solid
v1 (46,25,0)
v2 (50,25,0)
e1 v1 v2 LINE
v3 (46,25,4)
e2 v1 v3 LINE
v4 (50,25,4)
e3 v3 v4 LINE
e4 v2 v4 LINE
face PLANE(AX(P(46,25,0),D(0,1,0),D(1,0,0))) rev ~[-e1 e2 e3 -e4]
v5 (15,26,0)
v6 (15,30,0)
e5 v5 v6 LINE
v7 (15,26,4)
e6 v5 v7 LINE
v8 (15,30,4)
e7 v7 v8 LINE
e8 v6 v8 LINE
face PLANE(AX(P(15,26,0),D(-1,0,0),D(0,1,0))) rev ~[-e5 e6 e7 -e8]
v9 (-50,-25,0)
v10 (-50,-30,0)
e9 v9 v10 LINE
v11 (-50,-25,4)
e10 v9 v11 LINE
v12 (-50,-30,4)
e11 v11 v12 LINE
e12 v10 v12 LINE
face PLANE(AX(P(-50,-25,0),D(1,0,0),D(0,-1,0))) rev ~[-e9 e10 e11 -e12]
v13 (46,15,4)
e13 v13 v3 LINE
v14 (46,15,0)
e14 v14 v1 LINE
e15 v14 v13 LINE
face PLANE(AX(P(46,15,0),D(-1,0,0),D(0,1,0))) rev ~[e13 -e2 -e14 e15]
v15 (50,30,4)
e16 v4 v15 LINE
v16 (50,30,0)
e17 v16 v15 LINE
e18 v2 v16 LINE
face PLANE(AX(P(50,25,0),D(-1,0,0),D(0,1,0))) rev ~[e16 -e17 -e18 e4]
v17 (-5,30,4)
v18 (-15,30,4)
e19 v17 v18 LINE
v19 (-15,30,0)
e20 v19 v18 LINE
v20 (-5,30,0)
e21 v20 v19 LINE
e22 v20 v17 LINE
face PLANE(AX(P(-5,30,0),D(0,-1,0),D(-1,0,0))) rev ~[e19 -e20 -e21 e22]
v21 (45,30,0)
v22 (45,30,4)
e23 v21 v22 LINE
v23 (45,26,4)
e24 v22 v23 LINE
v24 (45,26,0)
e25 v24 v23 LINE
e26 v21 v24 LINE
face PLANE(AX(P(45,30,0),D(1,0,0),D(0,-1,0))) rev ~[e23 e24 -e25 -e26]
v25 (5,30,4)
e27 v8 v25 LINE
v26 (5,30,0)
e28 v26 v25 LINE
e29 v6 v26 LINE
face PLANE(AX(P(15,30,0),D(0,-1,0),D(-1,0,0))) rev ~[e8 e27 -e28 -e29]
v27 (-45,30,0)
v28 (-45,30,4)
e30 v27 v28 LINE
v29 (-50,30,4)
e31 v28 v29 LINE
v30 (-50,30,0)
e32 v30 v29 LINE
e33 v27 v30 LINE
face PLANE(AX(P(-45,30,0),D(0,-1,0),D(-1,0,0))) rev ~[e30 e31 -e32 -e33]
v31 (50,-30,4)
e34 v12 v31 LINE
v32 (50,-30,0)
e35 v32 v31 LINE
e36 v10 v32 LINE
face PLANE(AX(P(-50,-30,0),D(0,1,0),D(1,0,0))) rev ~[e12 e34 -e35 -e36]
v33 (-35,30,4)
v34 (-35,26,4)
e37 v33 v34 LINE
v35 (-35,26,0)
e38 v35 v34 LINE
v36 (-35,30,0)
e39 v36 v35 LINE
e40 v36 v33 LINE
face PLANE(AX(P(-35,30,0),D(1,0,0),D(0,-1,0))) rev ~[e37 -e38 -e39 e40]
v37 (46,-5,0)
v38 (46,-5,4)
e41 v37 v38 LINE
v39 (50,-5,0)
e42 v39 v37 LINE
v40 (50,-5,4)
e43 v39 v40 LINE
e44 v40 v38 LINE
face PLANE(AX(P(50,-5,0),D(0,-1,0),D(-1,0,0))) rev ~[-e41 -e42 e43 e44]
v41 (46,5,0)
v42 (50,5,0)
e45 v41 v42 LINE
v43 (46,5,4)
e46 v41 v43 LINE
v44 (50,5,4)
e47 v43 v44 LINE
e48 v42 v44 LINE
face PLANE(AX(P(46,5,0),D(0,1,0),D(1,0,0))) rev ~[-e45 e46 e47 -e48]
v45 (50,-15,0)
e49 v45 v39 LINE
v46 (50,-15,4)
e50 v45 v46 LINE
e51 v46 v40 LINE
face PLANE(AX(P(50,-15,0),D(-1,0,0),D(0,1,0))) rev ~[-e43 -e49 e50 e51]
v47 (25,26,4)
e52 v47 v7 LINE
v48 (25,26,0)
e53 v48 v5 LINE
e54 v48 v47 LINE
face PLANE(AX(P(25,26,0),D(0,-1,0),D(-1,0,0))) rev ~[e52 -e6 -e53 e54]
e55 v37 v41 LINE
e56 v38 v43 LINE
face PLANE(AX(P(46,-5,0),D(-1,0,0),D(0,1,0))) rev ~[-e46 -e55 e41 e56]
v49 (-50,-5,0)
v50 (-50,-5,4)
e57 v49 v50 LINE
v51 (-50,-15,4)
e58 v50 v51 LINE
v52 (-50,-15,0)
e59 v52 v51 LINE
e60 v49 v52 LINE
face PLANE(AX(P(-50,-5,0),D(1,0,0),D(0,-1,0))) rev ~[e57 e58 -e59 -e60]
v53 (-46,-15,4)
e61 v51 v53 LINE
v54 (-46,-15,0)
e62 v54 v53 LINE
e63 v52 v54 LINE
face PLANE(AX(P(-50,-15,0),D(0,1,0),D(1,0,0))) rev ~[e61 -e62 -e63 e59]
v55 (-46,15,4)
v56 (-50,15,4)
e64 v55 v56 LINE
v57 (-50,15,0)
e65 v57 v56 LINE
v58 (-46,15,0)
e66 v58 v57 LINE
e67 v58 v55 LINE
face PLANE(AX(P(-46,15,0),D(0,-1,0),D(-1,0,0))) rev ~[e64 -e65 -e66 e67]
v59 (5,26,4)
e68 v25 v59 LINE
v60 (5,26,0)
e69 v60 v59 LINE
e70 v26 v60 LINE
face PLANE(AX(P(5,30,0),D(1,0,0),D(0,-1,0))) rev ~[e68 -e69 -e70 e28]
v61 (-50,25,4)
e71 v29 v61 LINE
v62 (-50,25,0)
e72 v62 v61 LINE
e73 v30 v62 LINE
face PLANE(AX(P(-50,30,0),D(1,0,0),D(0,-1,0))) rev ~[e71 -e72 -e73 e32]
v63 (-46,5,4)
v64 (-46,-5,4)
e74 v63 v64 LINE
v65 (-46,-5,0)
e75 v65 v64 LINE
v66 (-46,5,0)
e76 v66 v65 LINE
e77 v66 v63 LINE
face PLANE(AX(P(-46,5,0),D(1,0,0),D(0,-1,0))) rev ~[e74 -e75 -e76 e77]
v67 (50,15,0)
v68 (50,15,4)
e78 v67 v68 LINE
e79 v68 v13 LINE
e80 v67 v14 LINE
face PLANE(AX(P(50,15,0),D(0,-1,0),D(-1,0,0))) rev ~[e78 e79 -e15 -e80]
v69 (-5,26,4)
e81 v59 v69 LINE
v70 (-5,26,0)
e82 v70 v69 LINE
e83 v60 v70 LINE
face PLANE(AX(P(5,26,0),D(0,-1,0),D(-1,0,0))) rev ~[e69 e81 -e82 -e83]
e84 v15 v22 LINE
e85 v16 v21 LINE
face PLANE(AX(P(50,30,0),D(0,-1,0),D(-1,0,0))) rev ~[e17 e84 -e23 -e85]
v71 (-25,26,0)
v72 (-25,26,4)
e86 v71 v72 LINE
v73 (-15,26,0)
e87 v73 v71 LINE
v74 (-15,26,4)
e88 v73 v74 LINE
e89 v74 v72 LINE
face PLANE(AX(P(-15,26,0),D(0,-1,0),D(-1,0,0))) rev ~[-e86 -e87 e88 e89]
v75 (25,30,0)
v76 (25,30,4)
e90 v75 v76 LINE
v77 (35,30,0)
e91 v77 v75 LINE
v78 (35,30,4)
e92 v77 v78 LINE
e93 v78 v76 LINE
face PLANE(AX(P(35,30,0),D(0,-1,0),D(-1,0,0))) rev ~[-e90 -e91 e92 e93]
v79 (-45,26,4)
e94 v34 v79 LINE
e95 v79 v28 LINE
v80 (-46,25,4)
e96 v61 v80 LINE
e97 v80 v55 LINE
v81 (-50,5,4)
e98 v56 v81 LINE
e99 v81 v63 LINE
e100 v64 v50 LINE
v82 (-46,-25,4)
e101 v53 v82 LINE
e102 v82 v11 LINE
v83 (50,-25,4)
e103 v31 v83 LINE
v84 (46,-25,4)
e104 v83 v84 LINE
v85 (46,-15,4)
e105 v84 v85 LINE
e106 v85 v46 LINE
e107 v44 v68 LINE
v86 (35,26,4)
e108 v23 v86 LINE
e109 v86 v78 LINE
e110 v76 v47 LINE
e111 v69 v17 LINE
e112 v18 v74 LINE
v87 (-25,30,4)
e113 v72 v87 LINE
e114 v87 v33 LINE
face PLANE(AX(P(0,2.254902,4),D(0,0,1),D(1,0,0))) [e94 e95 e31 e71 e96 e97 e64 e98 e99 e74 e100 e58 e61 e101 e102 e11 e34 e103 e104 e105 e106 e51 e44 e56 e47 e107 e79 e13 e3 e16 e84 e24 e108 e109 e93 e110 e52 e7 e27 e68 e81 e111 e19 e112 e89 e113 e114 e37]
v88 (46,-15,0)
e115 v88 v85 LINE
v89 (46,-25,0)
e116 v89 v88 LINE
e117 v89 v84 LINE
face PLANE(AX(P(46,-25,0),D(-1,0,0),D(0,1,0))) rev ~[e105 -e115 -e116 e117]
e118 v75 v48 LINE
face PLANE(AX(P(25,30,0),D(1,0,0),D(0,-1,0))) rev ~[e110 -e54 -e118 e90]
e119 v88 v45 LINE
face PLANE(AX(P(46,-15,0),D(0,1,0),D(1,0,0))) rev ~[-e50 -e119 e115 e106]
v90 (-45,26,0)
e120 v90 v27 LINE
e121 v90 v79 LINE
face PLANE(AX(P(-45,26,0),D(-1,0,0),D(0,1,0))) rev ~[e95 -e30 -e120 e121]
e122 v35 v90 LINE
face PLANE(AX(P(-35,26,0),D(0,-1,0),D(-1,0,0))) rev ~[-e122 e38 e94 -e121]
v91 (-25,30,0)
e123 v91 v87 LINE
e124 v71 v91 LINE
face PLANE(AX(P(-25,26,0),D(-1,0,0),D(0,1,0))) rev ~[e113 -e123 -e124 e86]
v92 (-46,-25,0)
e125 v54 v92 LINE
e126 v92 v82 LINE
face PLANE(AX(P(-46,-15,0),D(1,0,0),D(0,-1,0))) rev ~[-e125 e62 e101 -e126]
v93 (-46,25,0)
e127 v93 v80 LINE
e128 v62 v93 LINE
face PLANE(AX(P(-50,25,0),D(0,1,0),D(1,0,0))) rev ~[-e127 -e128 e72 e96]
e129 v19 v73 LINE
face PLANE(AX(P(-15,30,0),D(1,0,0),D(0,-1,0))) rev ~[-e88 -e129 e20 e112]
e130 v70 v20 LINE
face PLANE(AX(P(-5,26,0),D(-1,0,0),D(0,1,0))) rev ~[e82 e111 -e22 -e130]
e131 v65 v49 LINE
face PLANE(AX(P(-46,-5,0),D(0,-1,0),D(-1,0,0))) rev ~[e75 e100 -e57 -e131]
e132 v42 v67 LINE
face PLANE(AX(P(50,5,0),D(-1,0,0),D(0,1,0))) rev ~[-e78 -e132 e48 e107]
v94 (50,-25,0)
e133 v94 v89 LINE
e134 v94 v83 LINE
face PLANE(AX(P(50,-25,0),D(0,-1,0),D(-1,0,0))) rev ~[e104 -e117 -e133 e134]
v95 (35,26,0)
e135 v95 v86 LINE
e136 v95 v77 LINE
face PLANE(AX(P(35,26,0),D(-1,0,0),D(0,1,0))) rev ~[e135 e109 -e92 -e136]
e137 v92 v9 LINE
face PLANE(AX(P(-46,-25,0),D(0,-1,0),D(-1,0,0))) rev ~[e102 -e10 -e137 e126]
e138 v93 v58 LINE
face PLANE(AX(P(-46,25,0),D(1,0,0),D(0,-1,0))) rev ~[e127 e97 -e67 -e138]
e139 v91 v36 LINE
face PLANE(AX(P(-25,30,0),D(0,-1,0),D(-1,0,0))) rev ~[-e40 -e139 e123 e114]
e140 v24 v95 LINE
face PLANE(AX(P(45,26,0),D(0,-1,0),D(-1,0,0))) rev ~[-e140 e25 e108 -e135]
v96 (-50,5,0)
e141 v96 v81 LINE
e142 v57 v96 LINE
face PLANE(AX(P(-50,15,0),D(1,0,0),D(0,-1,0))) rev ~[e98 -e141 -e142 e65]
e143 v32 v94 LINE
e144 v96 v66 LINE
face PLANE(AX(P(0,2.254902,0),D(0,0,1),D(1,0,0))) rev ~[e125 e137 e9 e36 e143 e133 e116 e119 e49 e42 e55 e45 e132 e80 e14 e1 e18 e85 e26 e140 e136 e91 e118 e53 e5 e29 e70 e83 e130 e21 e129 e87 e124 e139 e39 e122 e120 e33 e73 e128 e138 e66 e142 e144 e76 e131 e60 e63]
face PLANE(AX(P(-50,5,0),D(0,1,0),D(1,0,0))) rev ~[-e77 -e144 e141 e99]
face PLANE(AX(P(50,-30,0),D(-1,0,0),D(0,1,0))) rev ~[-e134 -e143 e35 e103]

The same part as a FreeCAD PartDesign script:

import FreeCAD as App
import Part
import Sketcher

doc = App.newDocument("Part")
body = doc.addObject("PartDesign::Body", "Body")

# Sketch on XY plane
sketch1 = body.newObject("Sketcher::SketchObject", "Sketch")
sketch1.AttachmentSupport = (doc.getObject("XY_Plane"), [""])
sketch1.MapMode = "FlatFace"
sketch1.addGeometry([
    Part.LineSegment(App.Vector(-45, 30, 0), App.Vector(-50, 30, 0)),  # 0
    Part.LineSegment(App.Vector(-50, 30, 0), App.Vector(-50, 25, 0)),  # 1
    Part.LineSegment(App.Vector(-50, 25, 0), App.Vector(-46, 25, 0)),  # 2
    Part.LineSegment(App.Vector(-46, 25, 0), App.Vector(-46, 15, 0)),  # 3
    Part.LineSegment(App.Vector(-46, 15, 0), App.Vector(-50, 15, 0)),  # 4
    Part.LineSegment(App.Vector(-50, 15, 0), App.Vector(-50, 5, 0)),  # 5
    Part.LineSegment(App.Vector(-50, 5, 0), App.Vector(-46, 5, 0)),  # 6
    Part.LineSegment(App.Vector(-46, 5, 0), App.Vector(-46, -5, 0)),  # 7
    Part.LineSegment(App.Vector(-46, -5, 0), App.Vector(-50, -5, 0)),  # 8
    Part.LineSegment(App.Vector(-50, -5, 0), App.Vector(-50, -15, 0)),  # 9
    Part.LineSegment(App.Vector(-50, -15, 0), App.Vector(-46, -15, 0)),  # 10
    Part.LineSegment(App.Vector(-46, -15, 0), App.Vector(-46, -25, 0)),  # 11
    Part.LineSegment(App.Vector(-46, -25, 0), App.Vector(-50, -25, 0)),  # 12
    Part.LineSegment(App.Vector(-50, -25, 0), App.Vector(-50, -30, 0)),  # 13
    Part.LineSegment(App.Vector(-50, -30, 0), App.Vector(50, -30, 0)),  # 14
    Part.LineSegment(App.Vector(50, -30, 0), App.Vector(50, -25, 0)),  # 15
    Part.LineSegment(App.Vector(50, -25, 0), App.Vector(46, -25, 0)),  # 16
    Part.LineSegment(App.Vector(46, -25, 0), App.Vector(46, -15, 0)),  # 17
    Part.LineSegment(App.Vector(46, -15, 0), App.Vector(50, -15, 0)),  # 18
    Part.LineSegment(App.Vector(50, -15, 0), App.Vector(50, -5, 0)),  # 19
    Part.LineSegment(App.Vector(50, -5, 0), App.Vector(46, -5, 0)),  # 20
    Part.LineSegment(App.Vector(46, -5, 0), App.Vector(46, 5, 0)),  # 21
    Part.LineSegment(App.Vector(46, 5, 0), App.Vector(50, 5, 0)),  # 22
    Part.LineSegment(App.Vector(50, 5, 0), App.Vector(50, 15, 0)),  # 23
    Part.LineSegment(App.Vector(50, 15, 0), App.Vector(46, 15, 0)),  # 24
    Part.LineSegment(App.Vector(46, 15, 0), App.Vector(46, 25, 0)),  # 25
    Part.LineSegment(App.Vector(46, 25, 0), App.Vector(50, 25, 0)),  # 26
    Part.LineSegment(App.Vector(50, 25, 0), App.Vector(50, 30, 0)),  # 27
    Part.LineSegment(App.Vector(50, 30, 0), App.Vector(45, 30, 0)),  # 28
    Part.LineSegment(App.Vector(45, 30, 0), App.Vector(45, 26, 0)),  # 29
    Part.LineSegment(App.Vector(45, 26, 0), App.Vector(35, 26, 0)),  # 30
    Part.LineSegment(App.Vector(35, 26, 0), App.Vector(35, 30, 0)),  # 31
    Part.LineSegment(App.Vector(35, 30, 0), App.Vector(25, 30, 0)),  # 32
    Part.LineSegment(App.Vector(25, 30, 0), App.Vector(25, 26, 0)),  # 33
    Part.LineSegment(App.Vector(25, 26, 0), App.Vector(15, 26, 0)),  # 34
    Part.LineSegment(App.Vector(15, 26, 0), App.Vector(15, 30, 0)),  # 35
    Part.LineSegment(App.Vector(15, 30, 0), App.Vector(5, 30, 0)),  # 36
    Part.LineSegment(App.Vector(5, 30, 0), App.Vector(5, 26, 0)),  # 37
    Part.LineSegment(App.Vector(5, 26, 0), App.Vector(-5, 26, 0)),  # 38
    Part.LineSegment(App.Vector(-5, 26, 0), App.Vector(-5, 30, 0)),  # 39
    Part.LineSegment(App.Vector(-5, 30, 0), App.Vector(-15, 30, 0)),  # 40
    Part.LineSegment(App.Vector(-15, 30, 0), App.Vector(-15, 26, 0)),  # 41
    Part.LineSegment(App.Vector(-15, 26, 0), App.Vector(-25, 26, 0)),  # 42
    Part.LineSegment(App.Vector(-25, 26, 0), App.Vector(-25, 30, 0)),  # 43
    Part.LineSegment(App.Vector(-25, 30, 0), App.Vector(-35, 30, 0)),  # 44
    Part.LineSegment(App.Vector(-35, 30, 0), App.Vector(-35, 26, 0)),  # 45
    Part.LineSegment(App.Vector(-35, 26, 0), App.Vector(-45, 26, 0)),  # 46
    Part.LineSegment(App.Vector(-45, 26, 0), App.Vector(-45, 30, 0)),  # 47
], False)
sketch1.addConstraint([
    Sketcher.Constraint("Coincident", 0, 2, 1, 1),
    Sketcher.Constraint("Coincident", 1, 2, 2, 1),
    Sketcher.Constraint("Coincident", 2, 2, 3, 1),
    Sketcher.Constraint("Coincident", 3, 2, 4, 1),
    Sketcher.Constraint("Coincident", 4, 2, 5, 1),
    Sketcher.Constraint("Coincident", 5, 2, 6, 1),
    Sketcher.Constraint("Coincident", 6, 2, 7, 1),
    Sketcher.Constraint("Coincident", 7, 2, 8, 1),
    Sketcher.Constraint("Coincident", 8, 2, 9, 1),
    Sketcher.Constraint("Coincident", 9, 2, 10, 1),
    Sketcher.Constraint("Coincident", 10, 2, 11, 1),
    Sketcher.Constraint("Coincident", 11, 2, 12, 1),
    Sketcher.Constraint("Coincident", 12, 2, 13, 1),
    Sketcher.Constraint("Coincident", 13, 2, 14, 1),
    Sketcher.Constraint("Coincident", 14, 2, 15, 1),
    Sketcher.Constraint("Coincident", 15, 2, 16, 1),
    Sketcher.Constraint("Coincident", 16, 2, 17, 1),
    Sketcher.Constraint("Coincident", 17, 2, 18, 1),
    Sketcher.Constraint("Coincident", 18, 2, 19, 1),
    Sketcher.Constraint("Coincident", 19, 2, 20, 1),
    Sketcher.Constraint("Coincident", 20, 2, 21, 1),
    Sketcher.Constraint("Coincident", 21, 2, 22, 1),
    Sketcher.Constraint("Coincident", 22, 2, 23, 1),
    Sketcher.Constraint("Coincident", 23, 2, 24, 1),
    Sketcher.Constraint("Coincident", 24, 2, 25, 1),
    Sketcher.Constraint("Coincident", 25, 2, 26, 1),
    Sketcher.Constraint("Coincident", 26, 2, 27, 1),
    Sketcher.Constraint("Coincident", 27, 2, 28, 1),
    Sketcher.Constraint("Coincident", 28, 2, 29, 1),
    Sketcher.Constraint("Coincident", 29, 2, 30, 1),
    Sketcher.Constraint("Coincident", 30, 2, 31, 1),
    Sketcher.Constraint("Coincident", 31, 2, 32, 1),
    Sketcher.Constraint("Coincident", 32, 2, 33, 1),
    Sketcher.Constraint("Coincident", 33, 2, 34, 1),
    Sketcher.Constraint("Coincident", 34, 2, 35, 1),
    Sketcher.Constraint("Coincident", 35, 2, 36, 1),
    Sketcher.Constraint("Coincident", 36, 2, 37, 1),
    Sketcher.Constraint("Coincident", 37, 2, 38, 1),
    Sketcher.Constraint("Coincident", 38, 2, 39, 1),
    Sketcher.Constraint("Coincident", 39, 2, 40, 1),
    Sketcher.Constraint("Coincident", 40, 2, 41, 1),
    Sketcher.Constraint("Coincident", 41, 2, 42, 1),
    Sketcher.Constraint("Coincident", 42, 2, 43, 1),
    Sketcher.Constraint("Coincident", 43, 2, 44, 1),
    Sketcher.Constraint("Coincident", 44, 2, 45, 1),
    Sketcher.Constraint("Coincident", 45, 2, 46, 1),
    Sketcher.Constraint("Coincident", 46, 2, 47, 1),
    Sketcher.Constraint("Coincident", 47, 2, 0, 1),
    Sketcher.Constraint("Horizontal", 0),
    Sketcher.Constraint("Vertical", 1),
    Sketcher.Constraint("Horizontal", 2),
    Sketcher.Constraint("Vertical", 3),
    Sketcher.Constraint("Horizontal", 4),
    Sketcher.Constraint("Vertical", 5),
    Sketcher.Constraint("Horizontal", 6),
    Sketcher.Constraint("Vertical", 7),
    Sketcher.Constraint("Horizontal", 8),
    Sketcher.Constraint("Vertical", 9),
    Sketcher.Constraint("Horizontal", 10),
    Sketcher.Constraint("Vertical", 11),
    Sketcher.Constraint("Horizontal", 12),
    Sketcher.Constraint("Vertical", 13),
    Sketcher.Constraint("Horizontal", 14),
    Sketcher.Constraint("Vertical", 15),
    Sketcher.Constraint("Horizontal", 16),
    Sketcher.Constraint("Vertical", 17),
    Sketcher.Constraint("Horizontal", 18),
    Sketcher.Constraint("Vertical", 19),
    Sketcher.Constraint("Horizontal", 20),
    Sketcher.Constraint("Vertical", 21),
    Sketcher.Constraint("Horizontal", 22),
    Sketcher.Constraint("Vertical", 23),
    Sketcher.Constraint("Horizontal", 24),
    Sketcher.Constraint("Vertical", 25),
    Sketcher.Constraint("Horizontal", 26),
    Sketcher.Constraint("Vertical", 27),
    Sketcher.Constraint("Horizontal", 28),
    Sketcher.Constraint("Vertical", 29),
    Sketcher.Constraint("Horizontal", 30),
    Sketcher.Constraint("Vertical", 31),
    Sketcher.Constraint("Horizontal", 32),
    Sketcher.Constraint("Vertical", 33),
    Sketcher.Constraint("Horizontal", 34),
    Sketcher.Constraint("Vertical", 35),
    Sketcher.Constraint("Horizontal", 36),
    Sketcher.Constraint("Vertical", 37),
    Sketcher.Constraint("Horizontal", 38),
    Sketcher.Constraint("Vertical", 39),
    Sketcher.Constraint("Horizontal", 40),
    Sketcher.Constraint("Vertical", 41),
    Sketcher.Constraint("Horizontal", 42),
    Sketcher.Constraint("Vertical", 43),
    Sketcher.Constraint("Horizontal", 44),
    Sketcher.Constraint("Vertical", 45),
    Sketcher.Constraint("Horizontal", 46),
    Sketcher.Constraint("Vertical", 47),
    Sketcher.Constraint("Symmetric", 0, 2, 14, 2, -1, 1),
    Sketcher.Constraint("Symmetric", 2, 2, 16, 2, -1, 1),
    Sketcher.Constraint("Symmetric", 4, 2, 18, 2, -1, 1),
    Sketcher.Constraint("Symmetric", 6, 2, 20, 2, -1, 1),
    Sketcher.Constraint("Symmetric", 8, 2, 22, 2, -1, 1),
    Sketcher.Constraint("Symmetric", 10, 2, 24, 2, -1, 1),
    Sketcher.Constraint("Symmetric", 12, 2, 26, 2, -1, 1),
    Sketcher.Constraint("Symmetric", 12, 2, 15, 2, -2),
    Sketcher.Constraint("Symmetric", 10, 2, 17, 2, -2),
    Sketcher.Constraint("Symmetric", 8, 2, 19, 2, -2),
    Sketcher.Constraint("Symmetric", 36, 2, 39, 2, -2),
    Sketcher.Constraint("Symmetric", 34, 2, 41, 2, -2),
    Sketcher.Constraint("Symmetric", 32, 2, 43, 2, -2),
    Sketcher.Constraint("Symmetric", 30, 2, 45, 2, -2),
    Sketcher.Constraint("Symmetric", 28, 2, 47, 2, -2),
    Sketcher.Constraint("Horizontal", 28, 2, 31, 2),
    Sketcher.Constraint("Horizontal", 30, 2, 33, 2),
    Sketcher.Constraint("Horizontal", 32, 2, 35, 2),
    Sketcher.Constraint("Horizontal", 34, 2, 37, 2),
    Sketcher.Constraint("Vertical", 1, 2, 4, 2),
    Sketcher.Constraint("Vertical", 3, 2, 6, 2),
    Sketcher.Constraint("Equal", 30, 32),
    Sketcher.Constraint("Equal", 32, 34),
    Sketcher.Constraint("Equal", 34, 36),
    Sketcher.Constraint("Equal", 36, 38),
    Sketcher.Constraint("Equal", 28, 1),
    Sketcher.Constraint("Equal", 46, 3),
    Sketcher.Constraint("Equal", 3, 5),
    Sketcher.Constraint("Equal", 5, 7),
    Sketcher.Constraint("Equal", 26, 29),
    Sketcher.Constraint("DistanceX", 0, 2, 0, 1, 5.0),
    Sketcher.Constraint("DistanceX", 2, 1, 2, 2, 4.0),
    Sketcher.Constraint("DistanceX", 14, 1, 14, 2, 100.0),
])
pad1 = body.newObject("PartDesign::Pad", "Pad")
pad1.Profile = sketch1
pad1.Length = 4

doc.recompute()
